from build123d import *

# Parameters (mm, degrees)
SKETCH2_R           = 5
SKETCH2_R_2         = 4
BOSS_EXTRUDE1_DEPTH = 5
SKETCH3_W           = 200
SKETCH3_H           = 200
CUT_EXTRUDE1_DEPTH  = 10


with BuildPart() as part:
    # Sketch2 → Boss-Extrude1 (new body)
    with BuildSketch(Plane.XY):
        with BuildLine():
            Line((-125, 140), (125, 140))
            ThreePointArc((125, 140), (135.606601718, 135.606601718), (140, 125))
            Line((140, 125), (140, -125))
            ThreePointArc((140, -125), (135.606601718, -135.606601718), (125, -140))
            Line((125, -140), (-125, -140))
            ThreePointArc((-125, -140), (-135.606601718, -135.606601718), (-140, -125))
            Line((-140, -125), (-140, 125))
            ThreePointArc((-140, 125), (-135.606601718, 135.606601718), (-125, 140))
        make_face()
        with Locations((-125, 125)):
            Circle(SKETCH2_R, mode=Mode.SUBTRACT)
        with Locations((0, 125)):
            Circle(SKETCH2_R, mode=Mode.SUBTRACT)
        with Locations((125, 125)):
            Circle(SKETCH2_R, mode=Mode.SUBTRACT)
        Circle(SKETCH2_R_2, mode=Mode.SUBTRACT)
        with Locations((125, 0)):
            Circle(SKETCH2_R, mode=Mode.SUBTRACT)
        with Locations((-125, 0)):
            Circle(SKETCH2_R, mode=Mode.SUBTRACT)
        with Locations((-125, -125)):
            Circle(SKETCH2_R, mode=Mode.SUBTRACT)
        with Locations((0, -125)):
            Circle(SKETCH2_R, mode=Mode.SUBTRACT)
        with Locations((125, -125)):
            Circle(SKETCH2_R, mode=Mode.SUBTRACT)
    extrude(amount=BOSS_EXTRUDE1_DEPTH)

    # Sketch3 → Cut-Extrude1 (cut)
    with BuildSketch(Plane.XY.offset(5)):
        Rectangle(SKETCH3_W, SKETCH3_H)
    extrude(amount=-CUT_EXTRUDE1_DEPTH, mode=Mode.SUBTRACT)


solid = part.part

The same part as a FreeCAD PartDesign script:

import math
import FreeCAD as App
import Part
import Sketcher
Q = App.Units.Quantity

doc = App.newDocument("Part")
body = doc.addObject("PartDesign::Body", "Body")

# Sketch on XY plane
sketch1 = body.newObject("Sketcher::SketchObject", "Sketch")
sketch1.AttachmentSupport = (doc.getObject("XY_Plane"), [""])
sketch1.MapMode = "FlatFace"
sketch1.addGeometry([
    Part.LineSegment(App.Vector(125, 140, 0), App.Vector(-125, 140, 0)),  # 0
    Part.ArcOfCircle(Part.Circle(App.Vector(-125, 125, 0), App.Vector(0, 0, 1), 15), math.radians(90), math.radians(180)),  # 1
    Part.LineSegment(App.Vector(-140, 125, 0), App.Vector(-140, -125, 0)),  # 2
    Part.ArcOfCircle(Part.Circle(App.Vector(-125, -125, 0), App.Vector(0, 0, 1), 15), math.radians(180), math.radians(270)),  # 3
    Part.LineSegment(App.Vector(-125, -140, 0), App.Vector(125, -140, 0)),  # 4
    Part.ArcOfCircle(Part.Circle(App.Vector(125, -125, 0), App.Vector(0, 0, 1), 15), math.radians(-90), math.radians(0)),  # 5
    Part.LineSegment(App.Vector(140, -125, 0), App.Vector(140, 125, 0)),  # 6
    Part.ArcOfCircle(Part.Circle(App.Vector(125, 125, 0), App.Vector(0, 0, 1), 15), math.radians(0), math.radians(90)),  # 7
    Part.Circle(App.Vector(125, -125, 0), App.Vector(0, 0, 1), 5),  # 8
    Part.Circle(App.Vector(0, -125, 0), App.Vector(0, 0, 1), 5),  # 9
    Part.Circle(App.Vector(-125, -125, 0), App.Vector(0, 0, 1), 5),  # 10
    Part.Circle(App.Vector(125, 0, 0), App.Vector(0, 0, 1), 5),  # 11
    Part.Circle(App.Vector(125, 125, 0), App.Vector(0, 0, 1), 5),  # 12
    Part.Circle(App.Vector(0, 0, 0), App.Vector(0, 0, 1), 4),  # 13
    Part.Circle(App.Vector(-125, 0, 0), App.Vector(0, 0, 1), 5),  # 14
    Part.Circle(App.Vector(0, 125, 0), App.Vector(0, 0, 1), 5),  # 15
    Part.Circle(App.Vector(-125, 125, 0), App.Vector(0, 0, 1), 5),  # 16
], False)
sketch1.addConstraint([
    Sketcher.Constraint("Tangent", 0, 2, 1, 1),
    Sketcher.Constraint("Tangent", 1, 2, 2, 1),
    Sketcher.Constraint("Tangent", 2, 2, 3, 1),
    Sketcher.Constraint("Tangent", 3, 2, 4, 1),
    Sketcher.Constraint("Tangent", 4, 2, 5, 1),
    Sketcher.Constraint("Tangent", 5, 2, 6, 1),
    Sketcher.Constraint("Tangent", 6, 2, 7, 1),
    Sketcher.Constraint("Tangent", 7, 2, 0, 1),
    Sketcher.Constraint("Horizontal", 0),
    Sketcher.Constraint("Vertical", 2),
    Sketcher.Constraint("Horizontal", 4),
    Sketcher.Constraint("Vertical", 6),
    Sketcher.Constraint("Coincident", 13, 3, -1, 1),
    Sketcher.Constraint("Coincident", 8, 3, 5, 3),
    Sketcher.Constraint("Coincident", 10, 3, 3, 3),
    Sketcher.Constraint("Coincident", 12, 3, 7, 3),
    Sketcher.Constraint("Coincident", 16, 3, 1, 3),
    Sketcher.Constraint("Equal", 1, 3),
    Sketcher.Constraint("Equal", 3, 5),
    Sketcher.Constraint("Equal", 5, 7),
    Sketcher.Constraint("Equal", 8, 9),
    Sketcher.Constraint("Equal", 9, 10),
    Sketcher.Constraint("Equal", 10, 11),
    Sketcher.Constraint("Equal", 11, 12),
    Sketcher.Constraint("Equal", 12, 14),
    Sketcher.Constraint("Equal", 14, 15),
    Sketcher.Constraint("Equal", 15, 16),
    Sketcher.Constraint("Symmetric", 1, 3, 5, 3, -1, 1),
    Sketcher.Constraint("Symmetric", 11, 3, 14, 3, -1, 1),
    Sketcher.Constraint("Symmetric", 9, 3, 15, 3, -1, 1),
    Sketcher.Constraint("PointOnObject", 9, 3, -2),
    Sketcher.Constraint("PointOnObject", 11, 3, -1),
    Sketcher.Constraint("Horizontal", 8, 3, 9, 3),
    Sketcher.Constraint("Vertical", 8, 3, 11, 3),
    Sketcher.Constraint("Equal", 4, 2),
    Sketcher.Constraint("Diameter", 8, Q("10 mm")),
    Sketcher.Constraint("Diameter", 13, Q("8 mm")),
    Sketcher.Constraint("Radius", 1, Q("15 mm")),
    Sketcher.Constraint("DistanceX", 0, 2, 0, 1, Q("250 mm")),
])
pad1 = body.newObject("PartDesign::Pad", "Pad")
pad1.Profile = sketch1
pad1.Length = 5

# Sketch on XY plane
sketch2 = body.newObject("Sketcher::SketchObject", "Sketch001")
sketch2.AttachmentSupport = (doc.getObject("XY_Plane"), [""])
sketch2.MapMode = "FlatFace"
sketch2.AttachmentOffset = App.Placement(App.Vector(0, 0, 5), App.Rotation())
sketch2.addGeometry([
    Part.LineSegment(App.Vector(-100, 100, 0), App.Vector(-100, -100, 0)),
    Part.LineSegment(App.Vector(-100, -100, 0), App.Vector(100, -100, 0)),
    Part.LineSegment(App.Vector(100, -100, 0), App.Vector(100, 100, 0)),
    Part.LineSegment(App.Vector(100, 100, 0), App.Vector(-100, 100, 0)),
], False)
sketch2.addConstraint([
    Sketcher.Constraint("Coincident", 0, 2, 1, 1),
    Sketcher.Constraint("Coincident", 1, 2, 2, 1),
    Sketcher.Constraint("Coincident", 2, 2, 3, 1),
    Sketcher.Constraint("Coincident", 3, 2, 0, 1),
    Sketcher.Constraint("Vertical", 0),
    Sketcher.Constraint("Horizontal", 1),
    Sketcher.Constraint("Vertical", 2),
    Sketcher.Constraint("Horizontal", 3),
    Sketcher.Constraint("Symmetric", 0, 2, 2, 2, -1, 1),
    Sketcher.Constraint("Equal", 3, 0),
    Sketcher.Constraint("DistanceX", 1, 1, 1, 2, Q("200 mm")),
])
pocket1 = body.newObject("PartDesign::Pocket", "Pocket")
pocket1.Profile = sketch2
pocket1.Length = 10

doc.recompute()
